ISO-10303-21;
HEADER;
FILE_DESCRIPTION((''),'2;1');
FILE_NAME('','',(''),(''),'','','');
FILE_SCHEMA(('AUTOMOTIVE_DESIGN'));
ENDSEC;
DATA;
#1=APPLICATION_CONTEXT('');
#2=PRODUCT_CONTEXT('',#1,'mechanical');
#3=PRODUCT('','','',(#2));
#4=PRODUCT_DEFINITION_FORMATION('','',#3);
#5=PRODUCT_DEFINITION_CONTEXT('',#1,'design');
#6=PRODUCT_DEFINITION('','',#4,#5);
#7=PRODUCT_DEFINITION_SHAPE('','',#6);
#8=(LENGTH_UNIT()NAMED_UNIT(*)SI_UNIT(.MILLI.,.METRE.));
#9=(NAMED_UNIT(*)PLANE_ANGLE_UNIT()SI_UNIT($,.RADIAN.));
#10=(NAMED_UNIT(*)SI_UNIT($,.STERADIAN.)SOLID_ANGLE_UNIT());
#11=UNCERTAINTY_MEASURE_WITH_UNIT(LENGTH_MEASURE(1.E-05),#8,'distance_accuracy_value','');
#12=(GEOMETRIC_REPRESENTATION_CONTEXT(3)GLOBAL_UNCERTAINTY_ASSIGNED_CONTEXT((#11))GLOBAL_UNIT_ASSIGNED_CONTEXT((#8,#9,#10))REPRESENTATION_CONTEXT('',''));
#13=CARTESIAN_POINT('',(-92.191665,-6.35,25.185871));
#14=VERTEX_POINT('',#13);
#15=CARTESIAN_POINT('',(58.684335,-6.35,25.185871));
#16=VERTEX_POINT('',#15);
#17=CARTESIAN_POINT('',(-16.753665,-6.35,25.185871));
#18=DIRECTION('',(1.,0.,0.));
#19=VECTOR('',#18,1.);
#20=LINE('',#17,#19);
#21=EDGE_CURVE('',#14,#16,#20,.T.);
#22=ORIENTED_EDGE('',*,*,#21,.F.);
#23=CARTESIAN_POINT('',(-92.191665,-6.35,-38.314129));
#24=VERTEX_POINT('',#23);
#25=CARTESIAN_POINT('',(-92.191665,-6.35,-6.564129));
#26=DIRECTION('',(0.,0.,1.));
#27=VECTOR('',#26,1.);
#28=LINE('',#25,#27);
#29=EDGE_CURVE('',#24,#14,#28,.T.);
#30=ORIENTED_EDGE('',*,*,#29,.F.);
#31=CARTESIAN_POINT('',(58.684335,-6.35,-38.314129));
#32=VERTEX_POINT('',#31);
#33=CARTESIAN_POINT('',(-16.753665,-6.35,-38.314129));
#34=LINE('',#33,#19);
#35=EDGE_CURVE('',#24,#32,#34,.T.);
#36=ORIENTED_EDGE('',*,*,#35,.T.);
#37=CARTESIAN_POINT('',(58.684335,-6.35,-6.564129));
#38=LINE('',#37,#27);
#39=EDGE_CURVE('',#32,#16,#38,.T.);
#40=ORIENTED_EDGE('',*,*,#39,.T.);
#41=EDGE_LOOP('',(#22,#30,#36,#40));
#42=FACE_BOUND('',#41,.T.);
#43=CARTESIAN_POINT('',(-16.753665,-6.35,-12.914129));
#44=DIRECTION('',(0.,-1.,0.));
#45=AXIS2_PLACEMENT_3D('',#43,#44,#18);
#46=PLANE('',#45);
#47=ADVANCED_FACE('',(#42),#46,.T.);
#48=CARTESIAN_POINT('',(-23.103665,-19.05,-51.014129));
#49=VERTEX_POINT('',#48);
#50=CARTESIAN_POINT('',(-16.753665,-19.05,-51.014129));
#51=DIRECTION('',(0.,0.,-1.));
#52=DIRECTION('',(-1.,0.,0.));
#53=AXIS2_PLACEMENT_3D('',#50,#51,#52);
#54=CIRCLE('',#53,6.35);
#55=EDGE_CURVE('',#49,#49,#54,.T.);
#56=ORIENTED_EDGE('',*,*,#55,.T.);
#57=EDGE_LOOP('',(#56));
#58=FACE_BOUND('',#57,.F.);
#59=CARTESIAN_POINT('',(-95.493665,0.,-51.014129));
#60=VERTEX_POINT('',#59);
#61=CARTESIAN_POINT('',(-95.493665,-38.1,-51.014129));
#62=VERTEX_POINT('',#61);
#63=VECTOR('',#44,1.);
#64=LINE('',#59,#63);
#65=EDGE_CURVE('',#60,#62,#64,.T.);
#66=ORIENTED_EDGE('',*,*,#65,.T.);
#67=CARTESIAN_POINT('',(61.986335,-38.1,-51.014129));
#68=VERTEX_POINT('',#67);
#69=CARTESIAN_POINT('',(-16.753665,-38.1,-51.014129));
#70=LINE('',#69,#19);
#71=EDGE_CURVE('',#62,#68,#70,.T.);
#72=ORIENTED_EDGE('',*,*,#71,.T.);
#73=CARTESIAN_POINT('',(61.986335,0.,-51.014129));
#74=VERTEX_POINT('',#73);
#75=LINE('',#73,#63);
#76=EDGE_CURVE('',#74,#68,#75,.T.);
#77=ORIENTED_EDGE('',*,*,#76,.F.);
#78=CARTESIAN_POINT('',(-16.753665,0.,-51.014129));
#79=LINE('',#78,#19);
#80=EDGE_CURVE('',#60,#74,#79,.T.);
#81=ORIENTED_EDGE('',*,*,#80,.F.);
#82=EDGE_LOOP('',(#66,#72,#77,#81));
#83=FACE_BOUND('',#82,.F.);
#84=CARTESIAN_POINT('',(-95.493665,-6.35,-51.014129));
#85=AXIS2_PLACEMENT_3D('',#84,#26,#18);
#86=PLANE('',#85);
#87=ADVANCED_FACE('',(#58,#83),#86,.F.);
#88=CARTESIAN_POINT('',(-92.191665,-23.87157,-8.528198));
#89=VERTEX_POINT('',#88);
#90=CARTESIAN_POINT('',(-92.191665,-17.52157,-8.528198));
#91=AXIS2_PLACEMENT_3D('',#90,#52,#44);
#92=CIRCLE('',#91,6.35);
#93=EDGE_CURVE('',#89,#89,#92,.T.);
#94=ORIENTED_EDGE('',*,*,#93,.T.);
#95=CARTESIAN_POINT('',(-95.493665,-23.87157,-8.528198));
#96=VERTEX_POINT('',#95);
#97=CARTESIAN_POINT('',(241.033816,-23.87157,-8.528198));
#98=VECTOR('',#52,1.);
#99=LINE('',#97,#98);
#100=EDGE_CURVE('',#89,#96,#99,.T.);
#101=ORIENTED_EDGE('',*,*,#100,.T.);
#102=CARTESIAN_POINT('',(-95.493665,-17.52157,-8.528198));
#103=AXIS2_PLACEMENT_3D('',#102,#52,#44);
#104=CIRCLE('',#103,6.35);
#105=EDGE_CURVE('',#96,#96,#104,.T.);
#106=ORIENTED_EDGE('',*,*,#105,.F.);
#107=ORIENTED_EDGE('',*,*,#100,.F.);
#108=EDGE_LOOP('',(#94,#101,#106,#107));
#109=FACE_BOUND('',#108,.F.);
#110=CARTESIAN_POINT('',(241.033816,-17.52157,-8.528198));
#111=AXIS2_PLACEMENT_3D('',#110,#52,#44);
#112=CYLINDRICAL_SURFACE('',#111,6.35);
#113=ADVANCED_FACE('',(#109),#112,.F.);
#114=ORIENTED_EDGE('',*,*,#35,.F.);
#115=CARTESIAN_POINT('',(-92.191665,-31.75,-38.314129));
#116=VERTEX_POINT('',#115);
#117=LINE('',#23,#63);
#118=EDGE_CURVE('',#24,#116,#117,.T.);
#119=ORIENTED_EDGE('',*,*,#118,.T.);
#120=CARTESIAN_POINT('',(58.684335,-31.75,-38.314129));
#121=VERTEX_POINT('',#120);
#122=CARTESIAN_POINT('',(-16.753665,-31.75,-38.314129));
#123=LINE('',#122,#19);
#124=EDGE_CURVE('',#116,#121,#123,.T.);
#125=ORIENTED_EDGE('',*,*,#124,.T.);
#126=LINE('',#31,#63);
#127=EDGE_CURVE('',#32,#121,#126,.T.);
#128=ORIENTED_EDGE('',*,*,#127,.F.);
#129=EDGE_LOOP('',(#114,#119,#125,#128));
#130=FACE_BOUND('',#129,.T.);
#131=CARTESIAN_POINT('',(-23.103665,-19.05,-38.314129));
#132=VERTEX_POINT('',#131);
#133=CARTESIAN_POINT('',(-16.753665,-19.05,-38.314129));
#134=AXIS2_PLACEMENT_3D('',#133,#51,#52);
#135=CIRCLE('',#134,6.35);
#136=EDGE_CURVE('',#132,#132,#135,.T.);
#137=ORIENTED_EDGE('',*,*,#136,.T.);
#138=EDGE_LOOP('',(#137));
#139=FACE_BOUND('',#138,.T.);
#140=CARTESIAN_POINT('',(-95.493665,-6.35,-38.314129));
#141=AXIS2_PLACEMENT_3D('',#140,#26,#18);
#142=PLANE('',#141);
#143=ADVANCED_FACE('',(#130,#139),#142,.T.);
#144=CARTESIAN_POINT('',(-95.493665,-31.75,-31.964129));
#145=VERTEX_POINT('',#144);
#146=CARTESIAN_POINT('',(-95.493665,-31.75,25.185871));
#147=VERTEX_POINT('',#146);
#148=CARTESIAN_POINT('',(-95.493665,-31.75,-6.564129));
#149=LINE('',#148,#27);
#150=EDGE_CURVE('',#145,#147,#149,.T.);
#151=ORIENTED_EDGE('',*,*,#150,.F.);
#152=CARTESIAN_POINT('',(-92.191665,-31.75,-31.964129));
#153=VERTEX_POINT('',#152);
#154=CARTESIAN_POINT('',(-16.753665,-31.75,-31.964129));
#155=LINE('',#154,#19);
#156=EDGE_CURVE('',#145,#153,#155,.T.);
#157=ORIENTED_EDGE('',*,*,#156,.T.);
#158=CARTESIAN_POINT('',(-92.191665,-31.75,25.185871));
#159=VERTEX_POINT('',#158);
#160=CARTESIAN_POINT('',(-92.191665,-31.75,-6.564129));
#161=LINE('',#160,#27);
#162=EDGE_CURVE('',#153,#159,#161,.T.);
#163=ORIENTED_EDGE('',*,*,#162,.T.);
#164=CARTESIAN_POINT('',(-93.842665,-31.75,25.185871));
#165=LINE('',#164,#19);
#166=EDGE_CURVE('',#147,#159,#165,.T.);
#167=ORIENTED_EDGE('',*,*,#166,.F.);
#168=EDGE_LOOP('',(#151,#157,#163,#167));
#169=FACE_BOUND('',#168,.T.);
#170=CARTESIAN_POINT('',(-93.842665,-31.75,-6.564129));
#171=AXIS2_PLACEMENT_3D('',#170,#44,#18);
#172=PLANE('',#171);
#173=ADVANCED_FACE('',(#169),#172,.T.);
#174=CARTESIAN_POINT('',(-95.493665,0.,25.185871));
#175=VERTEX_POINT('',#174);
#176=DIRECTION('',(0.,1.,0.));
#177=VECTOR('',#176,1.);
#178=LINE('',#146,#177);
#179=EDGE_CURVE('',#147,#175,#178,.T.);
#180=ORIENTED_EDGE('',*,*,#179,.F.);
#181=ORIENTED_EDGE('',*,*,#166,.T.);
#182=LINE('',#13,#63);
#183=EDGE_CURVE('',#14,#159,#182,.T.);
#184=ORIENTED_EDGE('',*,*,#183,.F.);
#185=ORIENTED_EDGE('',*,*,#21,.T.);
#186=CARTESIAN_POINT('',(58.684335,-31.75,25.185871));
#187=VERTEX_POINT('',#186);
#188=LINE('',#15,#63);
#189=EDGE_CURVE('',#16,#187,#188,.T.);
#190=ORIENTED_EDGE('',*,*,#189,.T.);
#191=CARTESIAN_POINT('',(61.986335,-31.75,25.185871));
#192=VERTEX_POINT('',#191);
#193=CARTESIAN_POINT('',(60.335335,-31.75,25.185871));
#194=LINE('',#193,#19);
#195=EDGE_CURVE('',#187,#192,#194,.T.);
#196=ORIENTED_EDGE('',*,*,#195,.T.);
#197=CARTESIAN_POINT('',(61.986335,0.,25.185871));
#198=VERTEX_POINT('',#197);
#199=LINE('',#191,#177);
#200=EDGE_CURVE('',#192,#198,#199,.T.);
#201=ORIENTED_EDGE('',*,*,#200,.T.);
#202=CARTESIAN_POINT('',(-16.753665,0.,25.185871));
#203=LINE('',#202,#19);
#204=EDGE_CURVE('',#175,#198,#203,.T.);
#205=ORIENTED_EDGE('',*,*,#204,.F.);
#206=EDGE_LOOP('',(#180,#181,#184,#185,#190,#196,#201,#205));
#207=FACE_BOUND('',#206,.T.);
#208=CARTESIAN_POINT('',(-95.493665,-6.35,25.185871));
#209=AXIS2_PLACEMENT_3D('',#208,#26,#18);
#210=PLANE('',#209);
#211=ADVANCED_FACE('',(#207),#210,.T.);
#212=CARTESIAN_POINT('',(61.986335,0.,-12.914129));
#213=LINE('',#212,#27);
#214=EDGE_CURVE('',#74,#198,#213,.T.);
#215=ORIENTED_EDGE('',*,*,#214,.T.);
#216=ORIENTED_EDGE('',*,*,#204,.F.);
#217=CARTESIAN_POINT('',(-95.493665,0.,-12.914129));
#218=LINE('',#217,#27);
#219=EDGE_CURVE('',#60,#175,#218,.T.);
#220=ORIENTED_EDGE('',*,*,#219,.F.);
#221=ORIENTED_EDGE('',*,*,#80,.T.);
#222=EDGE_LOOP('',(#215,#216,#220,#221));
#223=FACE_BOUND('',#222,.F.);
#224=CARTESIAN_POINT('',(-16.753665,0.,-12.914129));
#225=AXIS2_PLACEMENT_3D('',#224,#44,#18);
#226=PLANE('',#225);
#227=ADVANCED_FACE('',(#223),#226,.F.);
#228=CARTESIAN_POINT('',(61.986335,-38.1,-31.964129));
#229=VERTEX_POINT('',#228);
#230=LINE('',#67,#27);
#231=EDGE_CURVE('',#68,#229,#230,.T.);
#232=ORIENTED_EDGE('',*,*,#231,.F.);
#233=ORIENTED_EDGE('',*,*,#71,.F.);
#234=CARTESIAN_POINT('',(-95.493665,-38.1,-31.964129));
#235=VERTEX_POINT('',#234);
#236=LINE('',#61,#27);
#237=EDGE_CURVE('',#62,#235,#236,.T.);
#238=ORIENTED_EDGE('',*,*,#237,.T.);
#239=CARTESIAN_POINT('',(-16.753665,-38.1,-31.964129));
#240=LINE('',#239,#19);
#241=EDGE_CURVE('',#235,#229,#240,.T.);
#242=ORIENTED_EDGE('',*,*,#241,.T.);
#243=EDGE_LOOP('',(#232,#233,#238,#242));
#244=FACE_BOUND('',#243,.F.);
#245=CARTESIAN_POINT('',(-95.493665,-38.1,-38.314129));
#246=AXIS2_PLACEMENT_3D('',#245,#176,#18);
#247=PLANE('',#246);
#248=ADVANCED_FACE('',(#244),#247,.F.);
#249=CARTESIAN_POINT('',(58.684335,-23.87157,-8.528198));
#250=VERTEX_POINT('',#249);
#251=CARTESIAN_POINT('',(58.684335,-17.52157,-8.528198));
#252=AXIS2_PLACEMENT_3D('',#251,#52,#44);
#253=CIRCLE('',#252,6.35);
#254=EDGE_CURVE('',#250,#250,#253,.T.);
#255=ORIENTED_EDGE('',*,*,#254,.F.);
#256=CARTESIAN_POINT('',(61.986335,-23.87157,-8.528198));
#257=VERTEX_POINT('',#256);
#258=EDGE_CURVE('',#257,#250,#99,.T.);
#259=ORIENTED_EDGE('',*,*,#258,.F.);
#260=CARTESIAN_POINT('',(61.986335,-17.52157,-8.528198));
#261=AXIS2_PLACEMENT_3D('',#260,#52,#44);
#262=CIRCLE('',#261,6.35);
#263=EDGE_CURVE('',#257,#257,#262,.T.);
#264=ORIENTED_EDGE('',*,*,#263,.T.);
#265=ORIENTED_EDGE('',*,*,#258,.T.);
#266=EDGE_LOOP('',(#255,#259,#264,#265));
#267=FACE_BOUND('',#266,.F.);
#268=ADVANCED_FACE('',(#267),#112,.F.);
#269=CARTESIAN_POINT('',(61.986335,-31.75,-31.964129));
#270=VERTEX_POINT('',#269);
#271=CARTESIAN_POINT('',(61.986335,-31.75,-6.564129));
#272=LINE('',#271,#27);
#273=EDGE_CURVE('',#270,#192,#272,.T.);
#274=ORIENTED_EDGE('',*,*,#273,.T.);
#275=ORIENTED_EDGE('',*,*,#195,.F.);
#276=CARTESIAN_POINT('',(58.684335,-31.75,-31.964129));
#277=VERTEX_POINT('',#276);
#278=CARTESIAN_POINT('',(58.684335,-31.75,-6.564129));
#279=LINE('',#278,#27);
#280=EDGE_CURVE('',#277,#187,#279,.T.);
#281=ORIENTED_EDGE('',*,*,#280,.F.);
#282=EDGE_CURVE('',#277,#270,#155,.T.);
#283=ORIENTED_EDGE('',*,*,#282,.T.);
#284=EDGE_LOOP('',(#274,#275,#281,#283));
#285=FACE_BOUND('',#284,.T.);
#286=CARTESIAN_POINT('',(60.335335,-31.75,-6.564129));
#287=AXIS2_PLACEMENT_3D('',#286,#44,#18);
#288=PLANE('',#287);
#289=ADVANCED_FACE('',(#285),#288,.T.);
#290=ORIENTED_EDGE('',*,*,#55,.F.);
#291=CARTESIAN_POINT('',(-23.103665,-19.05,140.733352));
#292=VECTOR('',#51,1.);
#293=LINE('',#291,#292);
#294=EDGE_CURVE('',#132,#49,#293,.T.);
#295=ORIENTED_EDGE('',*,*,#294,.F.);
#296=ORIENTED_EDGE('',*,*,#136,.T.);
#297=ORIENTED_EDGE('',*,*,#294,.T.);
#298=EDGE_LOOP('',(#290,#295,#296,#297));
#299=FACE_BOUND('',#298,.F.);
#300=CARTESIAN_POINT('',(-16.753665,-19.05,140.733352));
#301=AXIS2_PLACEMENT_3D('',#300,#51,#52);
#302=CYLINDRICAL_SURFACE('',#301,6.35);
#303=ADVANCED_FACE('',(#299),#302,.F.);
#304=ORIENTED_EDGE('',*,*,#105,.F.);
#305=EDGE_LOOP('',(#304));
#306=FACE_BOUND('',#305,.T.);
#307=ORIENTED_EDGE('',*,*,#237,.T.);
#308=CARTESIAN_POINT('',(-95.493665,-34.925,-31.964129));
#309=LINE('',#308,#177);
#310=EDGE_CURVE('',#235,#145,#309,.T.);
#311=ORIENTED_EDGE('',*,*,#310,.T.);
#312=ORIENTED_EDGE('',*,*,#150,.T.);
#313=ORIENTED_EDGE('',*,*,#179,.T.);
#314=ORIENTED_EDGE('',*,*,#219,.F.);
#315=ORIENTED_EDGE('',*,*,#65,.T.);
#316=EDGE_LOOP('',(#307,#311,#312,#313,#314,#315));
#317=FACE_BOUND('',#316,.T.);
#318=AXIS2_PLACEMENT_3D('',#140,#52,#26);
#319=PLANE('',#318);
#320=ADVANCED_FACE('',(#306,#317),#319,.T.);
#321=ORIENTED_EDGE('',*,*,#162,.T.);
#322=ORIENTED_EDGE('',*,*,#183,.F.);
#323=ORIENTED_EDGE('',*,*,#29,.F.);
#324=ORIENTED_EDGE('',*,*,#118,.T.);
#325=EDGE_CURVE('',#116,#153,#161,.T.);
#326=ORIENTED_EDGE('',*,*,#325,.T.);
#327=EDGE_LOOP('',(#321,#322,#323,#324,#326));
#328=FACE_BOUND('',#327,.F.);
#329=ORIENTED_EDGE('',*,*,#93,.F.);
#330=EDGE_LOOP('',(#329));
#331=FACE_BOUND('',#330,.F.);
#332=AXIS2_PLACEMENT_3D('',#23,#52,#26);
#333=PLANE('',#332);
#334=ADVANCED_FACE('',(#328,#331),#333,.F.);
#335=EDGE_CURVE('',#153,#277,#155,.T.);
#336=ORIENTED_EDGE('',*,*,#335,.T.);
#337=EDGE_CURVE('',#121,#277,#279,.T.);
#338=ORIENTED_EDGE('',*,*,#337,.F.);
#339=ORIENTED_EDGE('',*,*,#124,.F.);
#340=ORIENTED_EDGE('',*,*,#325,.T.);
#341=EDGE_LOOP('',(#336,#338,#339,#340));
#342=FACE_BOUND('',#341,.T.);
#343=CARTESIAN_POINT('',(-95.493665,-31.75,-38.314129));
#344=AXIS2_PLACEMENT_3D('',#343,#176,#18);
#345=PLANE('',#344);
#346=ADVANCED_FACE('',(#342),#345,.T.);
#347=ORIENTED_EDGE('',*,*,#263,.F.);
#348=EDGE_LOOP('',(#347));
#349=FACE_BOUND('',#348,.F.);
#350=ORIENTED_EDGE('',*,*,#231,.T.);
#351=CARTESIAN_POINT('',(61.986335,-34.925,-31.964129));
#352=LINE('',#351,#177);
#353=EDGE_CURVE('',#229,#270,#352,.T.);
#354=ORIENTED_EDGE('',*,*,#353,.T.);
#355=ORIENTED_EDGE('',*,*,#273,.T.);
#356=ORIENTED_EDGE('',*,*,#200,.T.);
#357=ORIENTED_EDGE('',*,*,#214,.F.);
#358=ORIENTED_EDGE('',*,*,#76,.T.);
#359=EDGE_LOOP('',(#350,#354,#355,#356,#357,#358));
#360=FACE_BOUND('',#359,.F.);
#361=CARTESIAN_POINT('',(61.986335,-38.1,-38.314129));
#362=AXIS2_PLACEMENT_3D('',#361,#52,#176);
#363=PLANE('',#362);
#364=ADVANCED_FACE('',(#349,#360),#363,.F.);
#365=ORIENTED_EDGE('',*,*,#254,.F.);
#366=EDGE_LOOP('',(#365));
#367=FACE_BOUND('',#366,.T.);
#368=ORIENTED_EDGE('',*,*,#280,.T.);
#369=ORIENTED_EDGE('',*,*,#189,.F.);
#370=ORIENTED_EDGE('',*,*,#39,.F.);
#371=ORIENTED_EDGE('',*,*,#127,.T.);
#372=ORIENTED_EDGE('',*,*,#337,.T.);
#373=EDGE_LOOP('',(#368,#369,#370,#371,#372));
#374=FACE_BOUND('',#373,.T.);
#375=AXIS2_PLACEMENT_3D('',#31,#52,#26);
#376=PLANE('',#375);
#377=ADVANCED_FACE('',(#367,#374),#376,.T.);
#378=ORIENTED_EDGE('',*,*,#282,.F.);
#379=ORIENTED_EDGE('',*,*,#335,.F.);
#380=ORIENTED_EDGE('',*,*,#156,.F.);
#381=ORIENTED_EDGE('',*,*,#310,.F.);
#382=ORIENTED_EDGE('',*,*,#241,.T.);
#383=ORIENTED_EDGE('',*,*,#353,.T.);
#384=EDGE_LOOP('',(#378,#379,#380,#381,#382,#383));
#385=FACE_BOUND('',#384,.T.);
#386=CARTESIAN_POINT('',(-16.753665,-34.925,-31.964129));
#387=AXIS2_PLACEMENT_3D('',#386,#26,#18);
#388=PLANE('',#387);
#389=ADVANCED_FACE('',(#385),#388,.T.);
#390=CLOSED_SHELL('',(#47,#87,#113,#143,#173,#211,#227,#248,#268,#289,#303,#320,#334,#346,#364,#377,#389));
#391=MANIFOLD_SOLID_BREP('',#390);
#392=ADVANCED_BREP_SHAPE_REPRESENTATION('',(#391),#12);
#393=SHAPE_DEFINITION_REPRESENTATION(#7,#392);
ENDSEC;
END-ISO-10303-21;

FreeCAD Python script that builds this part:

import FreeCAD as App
import Part
import Sketcher
Q = App.Units.Quantity


def add_polygon(sketch, points):
    """Adds a closed chain of lines whose ends are joined by coincident constraints."""
    first, n = sketch.GeometryCount, len(points)
    for a, b in zip(points, points[1:] + points[:1]):
        sketch.addGeometry(Part.LineSegment(App.Vector(*a, 0), App.Vector(*b, 0)), False)
    for i in range(n):
        sketch.addConstraint(Sketcher.Constraint("Coincident", first + i, 2, first + (i + 1) % n, 1))

doc = App.newDocument("Part")
body = doc.addObject("PartDesign::Body", "Body")

# Sketch on XZ plane
sketch1 = doc.addObject("Sketcher::SketchObject", "Sketch")
body.addObject(sketch1)
sketch1.AttachmentSupport = (doc.XZ_Plane, [""])
sketch1.MapMode = "FlatFace"
add_polygon(sketch1, [(-95.493665, 25.185871), (-95.493665, -51.014129), (61.986335, -51.014129), (61.986335, 25.185871)])  # lines 0-3
sketch1.addConstraint(Sketcher.Constraint("Vertical", 0))
sketch1.addConstraint(Sketcher.Constraint("Horizontal", 1))
sketch1.addConstraint(Sketcher.Constraint("Vertical", 2))
sketch1.addConstraint(Sketcher.Constraint("Horizontal", 3))
sketch1.addConstraint(Sketcher.Constraint("DistanceY", 0, 2, 0, 1, Q("3 in")))
sketch1.addConstraint(Sketcher.Constraint("DistanceX", 1, 1, 1, 2, Q("6.2 in")))
sketch1.addConstraint(Sketcher.Constraint("DistanceY", 0, 2, -1, 1, Q("51.014129 mm")))
sketch1.addConstraint(Sketcher.Constraint("DistanceX", 0, 2, -1, 1, Q("95.493665 mm")))
pad1 = doc.addObject("PartDesign::Pad", "Pad")
body.addObject(pad1)
pad1.Profile = sketch1
pad1.Length = Q("0.25 in")

# Sketch on XZ plane
sketch2 = doc.addObject("Sketcher::SketchObject", "Sketch001")
body.addObject(sketch2)
sketch2.AttachmentSupport = (doc.XZ_Plane, [""])
sketch2.MapMode = "FlatFace"
sketch2.AttachmentOffset = App.Placement(App.Vector(0, 0, 0.25 * 25.4), App.Rotation())
add_polygon(sketch2, [(-95.493665, -38.314129), (-95.493665, -51.014129), (61.986335, -51.014129), (61.986335, -38.314129)])  # lines 0-3
sketch2.addConstraint(Sketcher.Constraint("Vertical", 0))
sketch2.addConstraint(Sketcher.Constraint("Horizontal", 1))
sketch2.addConstraint(Sketcher.Constraint("Vertical", 2))
sketch2.addConstraint(Sketcher.Constraint("Horizontal", 3))
sketch2.addConstraint(Sketcher.Constraint("DistanceX", 1, 1, 1, 2, Q("6.2 in")))
sketch2.addConstraint(Sketcher.Constraint("DistanceY", 0, 2, 0, 1, Q("0.5 in")))
sketch2.addConstraint(Sketcher.Constraint("DistanceY", 0, 2, -1, 1, Q("51.014129 mm")))
sketch2.addConstraint(Sketcher.Constraint("DistanceX", 0, 2, -1, 1, Q("95.493665 mm")))
pad2 = doc.addObject("PartDesign::Pad", "Pad001")
body.addObject(pad2)
pad2.Profile = sketch2
pad2.Length = Q("1.25 in")

# Sketch on XY plane
sketch3 = doc.addObject("Sketcher::SketchObject", "Sketch002")
body.addObject(sketch3)
sketch3.AttachmentSupport = (doc.XY_Plane, [""])
sketch3.MapMode = "FlatFace"
sketch3.AttachmentOffset = App.Placement(App.Vector(0, 0, -38.314129), App.Rotation())
add_polygon(sketch3, [(-95.493665, -31.75), (-95.493665, -38.1), (61.986335, -38.1), (61.986335, -31.75)])  # lines 0-3
sketch3.addConstraint(Sketcher.Constraint("Vertical", 0))
sketch3.addConstraint(Sketcher.Constraint("Horizontal", 1))
sketch3.addConstraint(Sketcher.Constraint("Vertical", 2))
sketch3.addConstraint(Sketcher.Constraint("Horizontal", 3))
sketch3.addConstraint(Sketcher.Constraint("DistanceX", 1, 1, 1, 2, Q("6.2 in")))
sketch3.addConstraint(Sketcher.Constraint("DistanceY", 0, 2, 0, 1, Q("0.25 in")))
sketch3.addConstraint(Sketcher.Constraint("DistanceY", 0, 2, -1, 1, Q("1.5 in")))
sketch3.addConstraint(Sketcher.Constraint("DistanceX", 0, 2, -1, 1, Q("95.493665 mm")))
pad3 = doc.addObject("PartDesign::Pad", "Pad002")
body.addObject(pad3)
pad3.Profile = sketch3
pad3.Length = Q("0.25 in")

# Sketch on XY plane
sketch4 = doc.addObject("Sketcher::SketchObject", "Sketch003")
body.addObject(sketch4)
sketch4.AttachmentSupport = (doc.XY_Plane, [""])
sketch4.MapMode = "FlatFace"
sketch4.AttachmentOffset = App.Placement(App.Vector(0, 0, -38.314129), App.Rotation())
sketch4.addGeometry(Part.Circle(App.Vector(-16.753665, -19.05, 0), App.Vector(0, 0, 1), 6.35), False)
sketch4.addConstraint(Sketcher.Constraint("Diameter", 0, Q("0.5 in")))
sketch4.addConstraint(Sketcher.Constraint("DistanceY", 0, 3, -1, 1, Q("0.75 in")))
sketch4.addConstraint(Sketcher.Constraint("DistanceX", 0, 3, -1, 1, Q("16.753665 mm")))
doc.recompute()
hole = doc.addObject("PartDesign::Hole", "Hole")
body.addObject(hole)
hole.Profile = sketch4
hole.ThreadType = "None"
hole.Diameter = Q("0.5 in")
hole.DepthType = "ThroughAll"

# Sketch on XZ plane
sketch5 = doc.addObject("Sketcher::SketchObject", "Sketch004")
body.addObject(sketch5)
sketch5.AttachmentSupport = (doc.XZ_Plane, [""])
sketch5.MapMode = "FlatFace"
sketch5.AttachmentOffset = App.Placement(App.Vector(0, 0, 0.25 * 25.4), App.Rotation())
add_polygon(sketch5, [(-95.493665, 25.185871), (-95.493665, -38.314129), (-92.191665, -38.314129), (-92.191665, 25.185871)])  # lines 0-3
add_polygon(sketch5, [(58.684335, 25.185871), (58.684335, -38.314129), (61.986335, -38.314129), (61.986335, 25.185871)])  # lines 4-7
sketch5.addConstraint(Sketcher.Constraint("Vertical", 0))
sketch5.addConstraint(Sketcher.Constraint("Horizontal", 1))
sketch5.addConstraint(Sketcher.Constraint("Vertical", 2))
sketch5.addConstraint(Sketcher.Constraint("Horizontal", 3))
sketch5.addConstraint(Sketcher.Constraint("Vertical", 4))
sketch5.addConstraint(Sketcher.Constraint("Horizontal", 5))
sketch5.addConstraint(Sketcher.Constraint("Vertical", 6))
sketch5.addConstraint(Sketcher.Constraint("Horizontal", 7))
sketch5.addConstraint(Sketcher.Constraint("Horizontal", 1, 2, 4, 2))
sketch5.addConstraint(Sketcher.Constraint("Horizontal", 3, 2, 6, 2))
sketch5.addConstraint(Sketcher.Constraint("Equal", 3, 5))
sketch5.addConstraint(Sketcher.Constraint("DistanceY", 0, 2, 0, 1, Q("2.5 in")))
sketch5.addConstraint(Sketcher.Constraint("DistanceX", 1, 1, 1, 2, Q("0.13 in")))
sketch5.addConstraint(Sketcher.Constraint("DistanceX", 0, 2, 5, 2, Q("6.2 in")))
sketch5.addConstraint(Sketcher.Constraint("DistanceY", 0, 2, -1, 1, Q("38.314129 mm")))
sketch5.addConstraint(Sketcher.Constraint("DistanceX", 0, 2, -1, 1, Q("95.493665 mm")))
pad4 = doc.addObject("PartDesign::Pad", "Pad003")
body.addObject(pad4)
pad4.Profile = sketch5
pad4.Length = Q("1 in")

# Sketch on YZ plane
sketch6 = doc.addObject("Sketcher::SketchObject", "Sketch005")
body.addObject(sketch6)
sketch6.AttachmentSupport = (doc.YZ_Plane, [""])
sketch6.MapMode = "FlatFace"
sketch6.AttachmentOffset = App.Placement(App.Vector(0, 0, 61.986335), App.Rotation())
sketch6.addGeometry(Part.Circle(App.Vector(-17.52157, -8.528198, 0), App.Vector(0, 0, 1), 6.35), False)
sketch6.addConstraint(Sketcher.Constraint("Diameter", 0, Q("0.5 in")))
sketch6.addConstraint(Sketcher.Constraint("DistanceX", 0, 3, -1, 1, Q("17.52157 mm")))
sketch6.addConstraint(Sketcher.Constraint("DistanceY", 0, 3, -1, 1, Q("8.528198 mm")))
doc.recompute()
hole2 = doc.addObject("PartDesign::Hole", "Hole001")
body.addObject(hole2)
hole2.Profile = sketch6
hole2.ThreadType = "None"
hole2.Diameter = Q("0.5 in")
hole2.DepthType = "ThroughAll"

doc.recompute()
